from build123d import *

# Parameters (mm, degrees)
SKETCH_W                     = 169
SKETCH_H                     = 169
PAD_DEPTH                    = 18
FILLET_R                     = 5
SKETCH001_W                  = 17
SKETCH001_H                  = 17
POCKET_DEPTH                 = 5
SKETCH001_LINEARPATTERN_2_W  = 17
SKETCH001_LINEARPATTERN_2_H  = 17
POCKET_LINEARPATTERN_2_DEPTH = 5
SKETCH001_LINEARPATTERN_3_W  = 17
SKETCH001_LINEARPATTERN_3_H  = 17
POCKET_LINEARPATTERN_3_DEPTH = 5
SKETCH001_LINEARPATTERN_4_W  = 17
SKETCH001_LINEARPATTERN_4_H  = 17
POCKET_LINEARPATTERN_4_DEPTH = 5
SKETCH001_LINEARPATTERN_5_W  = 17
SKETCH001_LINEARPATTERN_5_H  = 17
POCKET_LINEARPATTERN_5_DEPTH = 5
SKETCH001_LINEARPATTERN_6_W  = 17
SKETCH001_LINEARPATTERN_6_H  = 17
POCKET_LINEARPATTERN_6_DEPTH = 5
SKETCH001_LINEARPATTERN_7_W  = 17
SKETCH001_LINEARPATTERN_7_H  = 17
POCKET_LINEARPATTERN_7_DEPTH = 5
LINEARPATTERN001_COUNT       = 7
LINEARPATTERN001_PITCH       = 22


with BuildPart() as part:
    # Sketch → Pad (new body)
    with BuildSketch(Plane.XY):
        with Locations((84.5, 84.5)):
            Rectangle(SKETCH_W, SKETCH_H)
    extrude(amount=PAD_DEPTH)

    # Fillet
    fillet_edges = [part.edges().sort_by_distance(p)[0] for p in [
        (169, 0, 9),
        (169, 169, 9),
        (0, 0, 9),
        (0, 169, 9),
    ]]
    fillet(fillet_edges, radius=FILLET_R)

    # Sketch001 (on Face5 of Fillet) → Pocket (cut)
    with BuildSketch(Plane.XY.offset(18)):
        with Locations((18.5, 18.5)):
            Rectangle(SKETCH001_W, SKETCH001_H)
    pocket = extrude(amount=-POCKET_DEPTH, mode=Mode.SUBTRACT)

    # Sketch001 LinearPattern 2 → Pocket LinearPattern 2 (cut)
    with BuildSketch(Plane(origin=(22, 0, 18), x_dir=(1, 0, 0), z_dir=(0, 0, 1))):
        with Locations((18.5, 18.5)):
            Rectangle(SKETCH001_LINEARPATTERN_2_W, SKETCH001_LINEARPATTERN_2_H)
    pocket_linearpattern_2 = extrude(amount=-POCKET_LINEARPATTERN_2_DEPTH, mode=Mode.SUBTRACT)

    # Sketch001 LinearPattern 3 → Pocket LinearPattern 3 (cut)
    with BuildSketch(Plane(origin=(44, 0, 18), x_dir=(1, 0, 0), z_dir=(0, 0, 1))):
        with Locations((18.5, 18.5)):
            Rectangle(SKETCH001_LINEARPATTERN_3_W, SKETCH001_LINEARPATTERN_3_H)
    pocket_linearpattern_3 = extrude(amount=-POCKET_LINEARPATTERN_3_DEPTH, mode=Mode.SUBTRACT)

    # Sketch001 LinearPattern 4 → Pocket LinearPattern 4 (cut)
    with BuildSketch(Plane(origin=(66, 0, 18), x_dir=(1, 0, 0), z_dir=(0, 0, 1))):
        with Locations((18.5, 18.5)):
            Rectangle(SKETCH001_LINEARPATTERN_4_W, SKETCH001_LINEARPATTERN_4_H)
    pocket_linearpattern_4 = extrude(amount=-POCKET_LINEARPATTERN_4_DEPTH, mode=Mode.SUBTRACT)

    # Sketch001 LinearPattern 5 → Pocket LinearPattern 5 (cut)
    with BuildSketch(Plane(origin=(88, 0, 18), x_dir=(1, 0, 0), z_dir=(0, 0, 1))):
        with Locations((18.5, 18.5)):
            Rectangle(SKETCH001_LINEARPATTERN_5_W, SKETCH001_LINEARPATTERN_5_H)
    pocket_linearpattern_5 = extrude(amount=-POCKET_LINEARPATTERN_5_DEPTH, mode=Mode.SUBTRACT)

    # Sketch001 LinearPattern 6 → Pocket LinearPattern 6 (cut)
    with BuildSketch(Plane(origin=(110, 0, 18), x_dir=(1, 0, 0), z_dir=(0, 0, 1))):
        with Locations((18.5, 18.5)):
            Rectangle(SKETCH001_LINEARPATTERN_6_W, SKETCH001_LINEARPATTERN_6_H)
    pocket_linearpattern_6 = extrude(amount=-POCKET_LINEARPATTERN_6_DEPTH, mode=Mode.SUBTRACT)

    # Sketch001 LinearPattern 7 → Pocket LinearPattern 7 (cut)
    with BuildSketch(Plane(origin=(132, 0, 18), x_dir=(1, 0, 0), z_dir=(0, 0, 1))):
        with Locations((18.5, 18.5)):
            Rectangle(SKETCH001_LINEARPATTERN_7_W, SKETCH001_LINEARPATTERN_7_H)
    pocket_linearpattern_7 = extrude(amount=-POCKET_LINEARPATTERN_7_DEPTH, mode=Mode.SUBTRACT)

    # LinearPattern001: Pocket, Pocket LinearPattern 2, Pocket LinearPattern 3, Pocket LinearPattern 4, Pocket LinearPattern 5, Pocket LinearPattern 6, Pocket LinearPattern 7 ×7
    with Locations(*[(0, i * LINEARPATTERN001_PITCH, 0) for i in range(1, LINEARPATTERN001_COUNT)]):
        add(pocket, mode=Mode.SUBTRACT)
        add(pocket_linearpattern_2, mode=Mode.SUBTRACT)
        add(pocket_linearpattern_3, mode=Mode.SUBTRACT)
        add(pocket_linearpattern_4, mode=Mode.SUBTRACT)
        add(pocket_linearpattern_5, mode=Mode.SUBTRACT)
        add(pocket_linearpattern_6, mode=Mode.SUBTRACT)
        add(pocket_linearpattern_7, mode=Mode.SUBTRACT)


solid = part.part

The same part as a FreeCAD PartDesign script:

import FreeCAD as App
import Part
import Sketcher


def edges_at(feature, points):
    """Names of the edges that pass closest to the given points."""
    edges = feature.Shape.Edges
    near = lambda p: min(range(len(edges)), key=lambda i: edges[i].distToShape(Part.Vertex(*p))[0])
    return sorted({f"Edge{near(p) + 1}" for p in points})


def add_polygon(sketch, points):
    """Adds a closed chain of lines whose ends are joined by coincident constraints."""
    first, n = sketch.GeometryCount, len(points)
    for a, b in zip(points, points[1:] + points[:1]):
        sketch.addGeometry(Part.LineSegment(App.Vector(*a, 0), App.Vector(*b, 0)), False)
    for i in range(n):
        sketch.addConstraint(Sketcher.Constraint("Coincident", first + i, 2, first + (i + 1) % n, 1))

doc = App.newDocument("Part")
body = doc.addObject("PartDesign::Body", "Body")

# Sketch on XY plane
sketch1 = body.newObject("Sketcher::SketchObject", "Sketch")
sketch1.AttachmentSupport = (doc.getObject("XY_Plane"), [""])
sketch1.MapMode = "FlatFace"
add_polygon(sketch1, [(0, 169), (0, 0), (169, 0), (169, 169)])  # lines 0-3
sketch1.addConstraint([
    Sketcher.Constraint("Vertical", 0),
    Sketcher.Constraint("Horizontal", 1),
    Sketcher.Constraint("Vertical", 2),
    Sketcher.Constraint("Horizontal", 3),
    Sketcher.Constraint("Coincident", 0, 2, -1, 1),
    Sketcher.Constraint("Equal", 3, 0),
    Sketcher.Constraint("DistanceX", 1, 1, 1, 2, 169.0),
])
pad1 = body.newObject("PartDesign::Pad", "Pad")
pad1.Profile = sketch1
pad1.Length = 18
doc.recompute()

fillet = body.newObject("PartDesign::Fillet", "Fillet")
fillet.Base = (pad1, edges_at(pad1, [
    (169, 0, 9),
    (169, 169, 9),
    (0, 0, 9),
    (0, 169, 9),
]))
fillet.Radius = 5

# Sketch on XY plane
sketch2 = body.newObject("Sketcher::SketchObject", "Sketch001")
sketch2.AttachmentSupport = (doc.getObject("XY_Plane"), [""])
sketch2.MapMode = "FlatFace"
sketch2.AttachmentOffset = App.Placement(App.Vector(0, 0, 18), App.Rotation())
add_polygon(sketch2, [(10, 27), (10, 10), (27, 10), (27, 27)])  # lines 0-3
sketch2.addConstraint([
    Sketcher.Constraint("Vertical", 0),
    Sketcher.Constraint("Horizontal", 1),
    Sketcher.Constraint("Vertical", 2),
    Sketcher.Constraint("Horizontal", 3),
    Sketcher.Constraint("Equal", 3, 0),
    Sketcher.Constraint("DistanceX", 1, 1, 1, 2, 17.0),
    Sketcher.Constraint("DistanceX", -1, 1, 0, 2, 10.0),
    Sketcher.Constraint("DistanceY", -1, 1, 0, 2, 10.0),
])
pocket1 = body.newObject("PartDesign::Pocket", "Pocket")
pocket1.Profile = sketch2
pocket1.Length = 5

# Sketch on XY plane
sketch3 = body.newObject("Sketcher::SketchObject", "Sketch002")
sketch3.AttachmentSupport = (doc.getObject("XY_Plane"), [""])
sketch3.MapMode = "FlatFace"
sketch3.AttachmentOffset = App.Placement(App.Vector(0, 0, 18), App.Rotation())
add_polygon(sketch3, [(32, 27), (32, 10), (49, 10), (49, 27)])  # lines 0-3
sketch3.addConstraint([
    Sketcher.Constraint("Vertical", 0),
    Sketcher.Constraint("Horizontal", 1),
    Sketcher.Constraint("Vertical", 2),
    Sketcher.Constraint("Horizontal", 3),
    Sketcher.Constraint("Equal", 3, 0),
    Sketcher.Constraint("DistanceX", 1, 1, 1, 2, 17.0),
    Sketcher.Constraint("DistanceX", -1, 1, 0, 2, 32.0),
    Sketcher.Constraint("DistanceY", -1, 1, 0, 2, 10.0),
])
pocket2 = body.newObject("PartDesign::Pocket", "Pocket001")
pocket2.Profile = sketch3
pocket2.Length = 5

# Sketch on XY plane
sketch4 = body.newObject("Sketcher::SketchObject", "Sketch003")
sketch4.AttachmentSupport = (doc.getObject("XY_Plane"), [""])
sketch4.MapMode = "FlatFace"
sketch4.AttachmentOffset = App.Placement(App.Vector(0, 0, 18), App.Rotation())
add_polygon(sketch4, [(54, 27), (54, 10), (71, 10), (71, 27)])  # lines 0-3
sketch4.addConstraint([
    Sketcher.Constraint("Vertical", 0),
    Sketcher.Constraint("Horizontal", 1),
    Sketcher.Constraint("Vertical", 2),
    Sketcher.Constraint("Horizontal", 3),
    Sketcher.Constraint("Equal", 3, 0),
    Sketcher.Constraint("DistanceX", 1, 1, 1, 2, 17.0),
    Sketcher.Constraint("DistanceX", -1, 1, 0, 2, 54.0),
    Sketcher.Constraint("DistanceY", -1, 1, 0, 2, 10.0),
])
pocket3 = body.newObject("PartDesign::Pocket", "Pocket002")
pocket3.Profile = sketch4
pocket3.Length = 5

# Sketch on XY plane
sketch5 = body.newObject("Sketcher::SketchObject", "Sketch004")
sketch5.AttachmentSupport = (doc.getObject("XY_Plane"), [""])
sketch5.MapMode = "FlatFace"
sketch5.AttachmentOffset = App.Placement(App.Vector(0, 0, 18), App.Rotation())
add_polygon(sketch5, [(76, 27), (76, 10), (93, 10), (93, 27)])  # lines 0-3
sketch5.addConstraint([
    Sketcher.Constraint("Vertical", 0),
    Sketcher.Constraint("Horizontal", 1),
    Sketcher.Constraint("Vertical", 2),
    Sketcher.Constraint("Horizontal", 3),
    Sketcher.Constraint("Equal", 3, 0),
    Sketcher.Constraint("DistanceX", 1, 1, 1, 2, 17.0),
    Sketcher.Constraint("DistanceX", -1, 1, 0, 2, 76.0),
    Sketcher.Constraint("DistanceY", -1, 1, 0, 2, 10.0),
])
pocket4 = body.newObject("PartDesign::Pocket", "Pocket003")
pocket4.Profile = sketch5
pocket4.Length = 5

# Sketch on XY plane
sketch6 = body.newObject("Sketcher::SketchObject", "Sketch005")
sketch6.AttachmentSupport = (doc.getObject("XY_Plane"), [""])
sketch6.MapMode = "FlatFace"
sketch6.AttachmentOffset = App.Placement(App.Vector(0, 0, 18), App.Rotation())
add_polygon(sketch6, [(98, 27), (98, 10), (115, 10), (115, 27)])  # lines 0-3
sketch6.addConstraint([
    Sketcher.Constraint("Vertical", 0),
    Sketcher.Constraint("Horizontal", 1),
    Sketcher.Constraint("Vertical", 2),
    Sketcher.Constraint("Horizontal", 3),
    Sketcher.Constraint("Equal", 3, 0),
    Sketcher.Constraint("DistanceX", 1, 1, 1, 2, 17.0),
    Sketcher.Constraint("DistanceX", -1, 1, 0, 2, 98.0),
    Sketcher.Constraint("DistanceY", -1, 1, 0, 2, 10.0),
])
pocket5 = body.newObject("PartDesign::Pocket", "Pocket004")
pocket5.Profile = sketch6
pocket5.Length = 5

# Sketch on XY plane
sketch7 = body.newObject("Sketcher::SketchObject", "Sketch006")
sketch7.AttachmentSupport = (doc.getObject("XY_Plane"), [""])
sketch7.MapMode = "FlatFace"
sketch7.AttachmentOffset = App.Placement(App.Vector(0, 0, 18), App.Rotation())
add_polygon(sketch7, [(120, 27), (120, 10), (137, 10), (137, 27)])  # lines 0-3
sketch7.addConstraint([
    Sketcher.Constraint("Vertical", 0),
    Sketcher.Constraint("Horizontal", 1),
    Sketcher.Constraint("Vertical", 2),
    Sketcher.Constraint("Horizontal", 3),
    Sketcher.Constraint("Equal", 3, 0),
    Sketcher.Constraint("DistanceX", 1, 1, 1, 2, 17.0),
    Sketcher.Constraint("DistanceX", -1, 1, 0, 2, 120.0),
    Sketcher.Constraint("DistanceY", -1, 1, 0, 2, 10.0),
])
pocket6 = body.newObject("PartDesign::Pocket", "Pocket005")
pocket6.Profile = sketch7
pocket6.Length = 5

# Sketch on XY plane
sketch8 = body.newObject("Sketcher::SketchObject", "Sketch007")
sketch8.AttachmentSupport = (doc.getObject("XY_Plane"), [""])
sketch8.MapMode = "FlatFace"
sketch8.AttachmentOffset = App.Placement(App.Vector(0, 0, 18), App.Rotation())
add_polygon(sketch8, [(142, 27), (142, 10), (159, 10), (159, 27)])  # lines 0-3
sketch8.addConstraint([
    Sketcher.Constraint("Vertical", 0),
    Sketcher.Constraint("Horizontal", 1),
    Sketcher.Constraint("Vertical", 2),
    Sketcher.Constraint("Horizontal", 3),
    Sketcher.Constraint("Equal", 3, 0),
    Sketcher.Constraint("DistanceX", 1, 1, 1, 2, 17.0),
    Sketcher.Constraint("DistanceX", -1, 1, 0, 2, 142.0),
    Sketcher.Constraint("DistanceY", -1, 1, 0, 2, 10.0),
])
pocket7 = body.newObject("PartDesign::Pocket", "Pocket006")
pocket7.Profile = sketch8
pocket7.Length = 5
doc.recompute()

linearpattern = body.newObject("PartDesign::LinearPattern", "LinearPattern")
linearpattern.Originals = [pocket1, pocket2, pocket3, pocket4, pocket5, pocket6, pocket7]
linearpattern.Direction = (doc.getObject("Y_Axis"), [""])
linearpattern.Mode = "offset"
linearpattern.Offset = 22
linearpattern.Occurrences = 7
body.Tip = linearpattern

doc.recompute()
